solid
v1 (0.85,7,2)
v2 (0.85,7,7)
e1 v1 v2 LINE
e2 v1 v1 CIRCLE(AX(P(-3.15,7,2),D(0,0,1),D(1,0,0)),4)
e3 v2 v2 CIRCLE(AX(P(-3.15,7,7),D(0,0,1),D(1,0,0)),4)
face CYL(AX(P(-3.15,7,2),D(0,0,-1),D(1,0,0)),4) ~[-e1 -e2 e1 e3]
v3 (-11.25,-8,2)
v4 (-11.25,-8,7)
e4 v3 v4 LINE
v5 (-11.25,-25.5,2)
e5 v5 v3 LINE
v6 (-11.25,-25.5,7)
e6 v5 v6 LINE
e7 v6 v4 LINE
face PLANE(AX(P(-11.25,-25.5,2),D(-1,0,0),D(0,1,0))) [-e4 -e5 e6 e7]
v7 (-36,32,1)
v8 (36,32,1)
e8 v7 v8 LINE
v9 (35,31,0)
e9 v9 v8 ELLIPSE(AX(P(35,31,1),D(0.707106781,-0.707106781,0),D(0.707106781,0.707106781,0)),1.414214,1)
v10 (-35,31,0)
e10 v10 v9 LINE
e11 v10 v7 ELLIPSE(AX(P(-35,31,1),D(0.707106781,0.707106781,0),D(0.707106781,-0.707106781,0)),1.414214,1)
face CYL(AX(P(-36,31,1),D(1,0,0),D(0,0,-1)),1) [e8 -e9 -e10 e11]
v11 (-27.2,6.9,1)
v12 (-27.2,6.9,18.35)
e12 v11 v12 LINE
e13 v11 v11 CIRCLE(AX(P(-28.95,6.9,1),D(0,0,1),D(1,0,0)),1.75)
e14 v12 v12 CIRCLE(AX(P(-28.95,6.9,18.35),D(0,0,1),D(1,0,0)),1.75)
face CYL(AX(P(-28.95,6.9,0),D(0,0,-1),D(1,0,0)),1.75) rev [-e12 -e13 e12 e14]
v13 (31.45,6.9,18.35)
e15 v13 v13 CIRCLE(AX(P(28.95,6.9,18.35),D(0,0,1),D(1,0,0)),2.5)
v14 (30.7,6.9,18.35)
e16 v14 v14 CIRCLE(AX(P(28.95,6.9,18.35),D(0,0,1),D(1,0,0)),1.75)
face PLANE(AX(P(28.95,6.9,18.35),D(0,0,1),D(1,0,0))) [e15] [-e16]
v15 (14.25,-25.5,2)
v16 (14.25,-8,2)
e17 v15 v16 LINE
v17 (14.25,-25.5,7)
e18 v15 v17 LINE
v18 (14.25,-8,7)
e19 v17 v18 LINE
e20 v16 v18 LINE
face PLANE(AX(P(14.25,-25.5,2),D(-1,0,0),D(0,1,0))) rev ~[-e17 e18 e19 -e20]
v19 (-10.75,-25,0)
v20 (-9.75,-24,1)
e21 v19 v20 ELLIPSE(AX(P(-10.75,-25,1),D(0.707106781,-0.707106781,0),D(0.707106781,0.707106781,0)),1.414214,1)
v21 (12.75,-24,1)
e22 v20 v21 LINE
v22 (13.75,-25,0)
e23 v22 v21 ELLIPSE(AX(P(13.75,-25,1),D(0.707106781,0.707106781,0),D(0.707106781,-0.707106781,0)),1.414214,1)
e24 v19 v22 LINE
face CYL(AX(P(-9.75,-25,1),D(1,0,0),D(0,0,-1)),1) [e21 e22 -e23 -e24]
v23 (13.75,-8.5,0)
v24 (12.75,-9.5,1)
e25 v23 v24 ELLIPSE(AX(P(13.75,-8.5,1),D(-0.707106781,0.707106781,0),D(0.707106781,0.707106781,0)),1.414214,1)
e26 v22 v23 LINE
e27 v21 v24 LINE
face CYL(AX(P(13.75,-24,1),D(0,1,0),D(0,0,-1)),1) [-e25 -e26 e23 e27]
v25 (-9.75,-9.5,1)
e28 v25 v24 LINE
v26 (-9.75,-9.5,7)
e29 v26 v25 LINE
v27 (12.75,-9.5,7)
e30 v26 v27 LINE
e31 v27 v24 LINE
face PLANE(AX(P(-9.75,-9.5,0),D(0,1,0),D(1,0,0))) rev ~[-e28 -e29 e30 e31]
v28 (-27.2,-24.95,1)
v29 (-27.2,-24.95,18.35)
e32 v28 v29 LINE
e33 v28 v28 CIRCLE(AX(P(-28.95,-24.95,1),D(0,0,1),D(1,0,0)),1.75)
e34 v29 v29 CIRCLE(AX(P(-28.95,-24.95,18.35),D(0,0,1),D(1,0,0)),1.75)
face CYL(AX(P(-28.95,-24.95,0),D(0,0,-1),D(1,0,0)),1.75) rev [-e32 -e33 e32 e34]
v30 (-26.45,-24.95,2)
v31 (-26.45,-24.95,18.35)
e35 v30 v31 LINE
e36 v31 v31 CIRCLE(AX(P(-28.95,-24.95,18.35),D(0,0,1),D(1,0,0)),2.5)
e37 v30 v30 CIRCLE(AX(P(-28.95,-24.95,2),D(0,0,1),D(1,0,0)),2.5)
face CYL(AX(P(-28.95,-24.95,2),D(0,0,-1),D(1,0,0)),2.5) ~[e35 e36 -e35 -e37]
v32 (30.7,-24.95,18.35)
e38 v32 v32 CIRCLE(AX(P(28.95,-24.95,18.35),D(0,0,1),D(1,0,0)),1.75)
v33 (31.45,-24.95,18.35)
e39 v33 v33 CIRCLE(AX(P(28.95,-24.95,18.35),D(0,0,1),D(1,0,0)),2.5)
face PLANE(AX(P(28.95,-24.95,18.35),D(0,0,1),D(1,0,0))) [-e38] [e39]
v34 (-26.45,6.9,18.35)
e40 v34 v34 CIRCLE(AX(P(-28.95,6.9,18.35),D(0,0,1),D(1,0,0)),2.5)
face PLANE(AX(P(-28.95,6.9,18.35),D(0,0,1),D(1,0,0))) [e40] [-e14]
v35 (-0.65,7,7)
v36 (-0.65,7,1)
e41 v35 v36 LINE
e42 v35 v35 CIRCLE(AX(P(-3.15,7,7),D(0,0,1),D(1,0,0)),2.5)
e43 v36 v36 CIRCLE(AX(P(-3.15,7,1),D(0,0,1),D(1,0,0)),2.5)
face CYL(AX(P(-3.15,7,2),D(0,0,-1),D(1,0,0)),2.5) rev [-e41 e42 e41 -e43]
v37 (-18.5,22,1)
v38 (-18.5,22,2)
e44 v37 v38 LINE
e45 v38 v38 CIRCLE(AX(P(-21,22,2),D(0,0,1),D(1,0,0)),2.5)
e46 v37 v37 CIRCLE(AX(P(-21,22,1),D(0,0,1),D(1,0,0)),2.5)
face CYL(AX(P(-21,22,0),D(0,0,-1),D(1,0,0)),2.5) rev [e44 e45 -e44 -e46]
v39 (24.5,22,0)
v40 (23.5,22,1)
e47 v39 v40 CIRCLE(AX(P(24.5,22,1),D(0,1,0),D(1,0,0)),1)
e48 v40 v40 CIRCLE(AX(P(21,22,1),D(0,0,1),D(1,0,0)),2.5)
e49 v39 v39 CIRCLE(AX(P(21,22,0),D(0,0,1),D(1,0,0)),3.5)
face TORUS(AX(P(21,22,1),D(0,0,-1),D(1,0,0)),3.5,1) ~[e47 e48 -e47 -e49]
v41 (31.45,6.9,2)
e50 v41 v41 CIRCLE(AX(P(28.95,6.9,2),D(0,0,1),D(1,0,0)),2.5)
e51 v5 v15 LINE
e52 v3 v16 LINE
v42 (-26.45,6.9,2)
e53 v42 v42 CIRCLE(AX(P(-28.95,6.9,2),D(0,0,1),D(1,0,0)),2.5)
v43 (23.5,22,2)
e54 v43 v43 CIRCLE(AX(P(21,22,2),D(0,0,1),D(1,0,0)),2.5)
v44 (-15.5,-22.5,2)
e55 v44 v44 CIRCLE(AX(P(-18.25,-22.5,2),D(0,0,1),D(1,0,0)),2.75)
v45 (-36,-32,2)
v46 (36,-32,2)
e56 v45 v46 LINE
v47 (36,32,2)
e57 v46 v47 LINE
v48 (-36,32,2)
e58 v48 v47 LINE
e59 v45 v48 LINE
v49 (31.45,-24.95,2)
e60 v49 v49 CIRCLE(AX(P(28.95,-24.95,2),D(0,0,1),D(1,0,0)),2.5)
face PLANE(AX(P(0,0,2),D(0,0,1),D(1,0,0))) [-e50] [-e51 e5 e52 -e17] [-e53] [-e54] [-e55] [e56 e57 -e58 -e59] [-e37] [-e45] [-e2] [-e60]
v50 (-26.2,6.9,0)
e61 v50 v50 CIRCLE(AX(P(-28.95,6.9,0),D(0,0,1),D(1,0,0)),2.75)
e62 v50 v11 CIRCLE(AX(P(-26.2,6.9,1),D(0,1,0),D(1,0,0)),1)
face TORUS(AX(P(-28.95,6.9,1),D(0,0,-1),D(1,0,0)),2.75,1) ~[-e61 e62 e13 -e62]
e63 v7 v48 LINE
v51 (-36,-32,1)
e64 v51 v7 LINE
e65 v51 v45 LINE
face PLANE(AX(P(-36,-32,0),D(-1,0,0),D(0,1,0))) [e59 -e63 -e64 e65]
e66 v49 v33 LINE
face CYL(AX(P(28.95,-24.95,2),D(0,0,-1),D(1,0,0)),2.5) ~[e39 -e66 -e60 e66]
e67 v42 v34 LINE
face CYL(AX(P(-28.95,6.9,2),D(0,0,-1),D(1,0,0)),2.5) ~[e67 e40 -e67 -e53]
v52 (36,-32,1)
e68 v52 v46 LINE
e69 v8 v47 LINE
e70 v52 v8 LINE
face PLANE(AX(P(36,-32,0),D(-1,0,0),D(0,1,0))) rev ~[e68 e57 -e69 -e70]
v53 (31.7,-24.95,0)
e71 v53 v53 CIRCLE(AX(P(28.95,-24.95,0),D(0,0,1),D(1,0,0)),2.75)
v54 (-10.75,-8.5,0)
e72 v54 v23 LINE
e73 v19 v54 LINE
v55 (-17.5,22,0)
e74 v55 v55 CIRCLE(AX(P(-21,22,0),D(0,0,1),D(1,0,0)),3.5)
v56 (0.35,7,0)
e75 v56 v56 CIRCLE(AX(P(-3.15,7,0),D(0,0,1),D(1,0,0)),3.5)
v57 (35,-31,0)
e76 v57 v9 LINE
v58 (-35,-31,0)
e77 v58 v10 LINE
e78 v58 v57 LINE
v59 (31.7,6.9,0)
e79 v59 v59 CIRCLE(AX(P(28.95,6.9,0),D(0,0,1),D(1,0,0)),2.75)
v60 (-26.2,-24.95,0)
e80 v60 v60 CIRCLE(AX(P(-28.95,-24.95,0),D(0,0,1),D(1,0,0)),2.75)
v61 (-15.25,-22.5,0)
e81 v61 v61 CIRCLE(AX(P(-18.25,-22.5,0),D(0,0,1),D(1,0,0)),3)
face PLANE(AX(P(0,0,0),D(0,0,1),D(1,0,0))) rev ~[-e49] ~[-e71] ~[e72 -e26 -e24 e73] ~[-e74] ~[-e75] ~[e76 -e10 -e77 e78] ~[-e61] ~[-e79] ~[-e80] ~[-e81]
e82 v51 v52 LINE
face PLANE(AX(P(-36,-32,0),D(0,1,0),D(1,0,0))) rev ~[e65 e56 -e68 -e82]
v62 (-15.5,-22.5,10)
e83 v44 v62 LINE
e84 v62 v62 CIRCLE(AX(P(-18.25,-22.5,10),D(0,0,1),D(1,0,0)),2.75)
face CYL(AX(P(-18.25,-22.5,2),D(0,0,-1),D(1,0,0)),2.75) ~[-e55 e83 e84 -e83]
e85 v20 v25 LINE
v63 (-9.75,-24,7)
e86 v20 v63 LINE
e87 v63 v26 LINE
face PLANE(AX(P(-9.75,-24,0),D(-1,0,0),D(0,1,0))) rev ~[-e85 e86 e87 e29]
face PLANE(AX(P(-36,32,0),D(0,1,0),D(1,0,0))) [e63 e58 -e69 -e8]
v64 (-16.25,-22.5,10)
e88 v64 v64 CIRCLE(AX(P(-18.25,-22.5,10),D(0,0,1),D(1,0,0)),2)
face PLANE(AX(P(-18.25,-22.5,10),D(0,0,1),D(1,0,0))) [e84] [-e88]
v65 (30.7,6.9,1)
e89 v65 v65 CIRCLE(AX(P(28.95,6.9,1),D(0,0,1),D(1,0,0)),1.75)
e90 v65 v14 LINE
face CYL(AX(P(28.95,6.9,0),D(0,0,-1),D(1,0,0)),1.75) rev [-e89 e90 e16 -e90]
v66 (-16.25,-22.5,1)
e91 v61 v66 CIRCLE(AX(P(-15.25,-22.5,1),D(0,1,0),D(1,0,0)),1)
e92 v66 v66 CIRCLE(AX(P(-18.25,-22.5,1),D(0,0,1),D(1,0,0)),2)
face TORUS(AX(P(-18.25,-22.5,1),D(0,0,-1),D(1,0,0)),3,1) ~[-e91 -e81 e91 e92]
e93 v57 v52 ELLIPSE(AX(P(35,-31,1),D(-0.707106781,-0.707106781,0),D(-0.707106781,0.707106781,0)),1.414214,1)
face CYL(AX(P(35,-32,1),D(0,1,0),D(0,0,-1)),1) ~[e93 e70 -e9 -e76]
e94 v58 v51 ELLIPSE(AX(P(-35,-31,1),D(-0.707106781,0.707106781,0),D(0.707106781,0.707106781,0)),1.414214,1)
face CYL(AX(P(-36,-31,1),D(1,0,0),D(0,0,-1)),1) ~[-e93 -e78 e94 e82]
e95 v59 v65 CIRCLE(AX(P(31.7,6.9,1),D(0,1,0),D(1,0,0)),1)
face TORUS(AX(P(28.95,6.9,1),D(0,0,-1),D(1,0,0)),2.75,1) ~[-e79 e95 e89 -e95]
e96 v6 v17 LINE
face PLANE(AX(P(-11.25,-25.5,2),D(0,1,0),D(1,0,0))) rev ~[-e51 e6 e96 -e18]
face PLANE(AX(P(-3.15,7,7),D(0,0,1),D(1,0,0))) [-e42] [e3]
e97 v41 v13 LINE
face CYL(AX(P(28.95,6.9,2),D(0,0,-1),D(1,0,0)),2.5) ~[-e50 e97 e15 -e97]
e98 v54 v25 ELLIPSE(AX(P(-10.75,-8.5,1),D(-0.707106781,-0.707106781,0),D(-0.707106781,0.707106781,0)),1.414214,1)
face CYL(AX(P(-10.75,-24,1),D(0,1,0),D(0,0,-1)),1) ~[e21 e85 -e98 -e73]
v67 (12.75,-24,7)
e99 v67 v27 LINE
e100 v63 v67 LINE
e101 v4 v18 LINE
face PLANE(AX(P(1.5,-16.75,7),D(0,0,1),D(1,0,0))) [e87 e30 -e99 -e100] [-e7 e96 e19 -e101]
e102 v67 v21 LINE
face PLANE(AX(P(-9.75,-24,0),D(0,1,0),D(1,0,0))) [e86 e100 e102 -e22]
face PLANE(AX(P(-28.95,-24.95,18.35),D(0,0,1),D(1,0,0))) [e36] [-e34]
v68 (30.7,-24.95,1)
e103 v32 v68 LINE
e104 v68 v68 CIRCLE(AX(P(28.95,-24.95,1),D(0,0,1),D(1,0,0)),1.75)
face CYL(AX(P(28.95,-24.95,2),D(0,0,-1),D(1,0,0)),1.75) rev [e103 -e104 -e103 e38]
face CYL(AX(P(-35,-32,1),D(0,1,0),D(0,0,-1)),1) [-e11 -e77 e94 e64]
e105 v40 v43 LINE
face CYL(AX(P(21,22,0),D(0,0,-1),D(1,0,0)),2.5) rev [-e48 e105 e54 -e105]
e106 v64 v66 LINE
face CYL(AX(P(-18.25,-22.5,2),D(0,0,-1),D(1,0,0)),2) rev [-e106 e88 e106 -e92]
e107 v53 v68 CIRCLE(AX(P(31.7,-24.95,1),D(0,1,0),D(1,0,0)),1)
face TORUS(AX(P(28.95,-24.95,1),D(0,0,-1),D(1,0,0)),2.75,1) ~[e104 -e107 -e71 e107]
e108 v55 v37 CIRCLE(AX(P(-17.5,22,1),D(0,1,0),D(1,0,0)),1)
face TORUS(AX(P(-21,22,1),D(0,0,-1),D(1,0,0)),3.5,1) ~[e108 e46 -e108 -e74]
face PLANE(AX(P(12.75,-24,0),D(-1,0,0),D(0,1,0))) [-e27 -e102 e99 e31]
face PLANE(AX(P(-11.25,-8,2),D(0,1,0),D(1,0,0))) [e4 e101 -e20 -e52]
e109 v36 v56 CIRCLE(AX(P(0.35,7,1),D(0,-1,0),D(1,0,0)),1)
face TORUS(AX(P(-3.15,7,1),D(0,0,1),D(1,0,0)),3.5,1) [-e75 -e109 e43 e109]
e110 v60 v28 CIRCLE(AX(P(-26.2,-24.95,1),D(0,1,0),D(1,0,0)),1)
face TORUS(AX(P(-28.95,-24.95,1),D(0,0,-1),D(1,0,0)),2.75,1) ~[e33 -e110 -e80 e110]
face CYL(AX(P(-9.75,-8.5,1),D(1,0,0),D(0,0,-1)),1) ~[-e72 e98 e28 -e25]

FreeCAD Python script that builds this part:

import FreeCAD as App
import Part
import Sketcher


def edges_at(feature, points):
    """Names of the edges that pass closest to the given points."""
    edges = feature.Shape.Edges
    near = lambda p: min(range(len(edges)), key=lambda i: edges[i].distToShape(Part.Vertex(*p))[0])
    return sorted({f"Edge{near(p) + 1}" for p in points})


def add_polygon(sketch, points):
    """Adds a closed chain of lines whose ends are joined by coincident constraints."""
    first, n = sketch.GeometryCount, len(points)
    for a, b in zip(points, points[1:] + points[:1]):
        sketch.addGeometry(Part.LineSegment(App.Vector(*a, 0), App.Vector(*b, 0)), False)
    for i in range(n):
        sketch.addConstraint(Sketcher.Constraint("Coincident", first + i, 2, first + (i + 1) % n, 1))

doc = App.newDocument("Part")
body = doc.addObject("PartDesign::Body", "Body")

# Sketch on XY plane
sketch1 = body.newObject("Sketcher::SketchObject", "Sketch")
sketch1.AttachmentSupport = (doc.getObject("XY_Plane"), [""])
sketch1.MapMode = "FlatFace"
add_polygon(sketch1, [(-36, 32), (-36, -32), (36, -32), (36, 32)])  # lines 0-3
sketch1.addGeometry(Part.Circle(App.Vector(-28.95, -24.95, 0), App.Vector(0, 0, 1), 1.75), False)  # 4
sketch1.addGeometry(Part.Circle(App.Vector(-18.25, -22.5, 0), App.Vector(0, 0, 1), 2), False)  # 5
add_polygon(sketch1, [(12.75, -24), (-9.75, -24), (-9.75, -9.5), (12.75, -9.5)])  # lines 6-9
sketch1.addGeometry(Part.Circle(App.Vector(28.95, -24.95, 0), App.Vector(0, 0, 1), 1.75), False)  # 10
sketch1.addGeometry(Part.Circle(App.Vector(-28.95, 6.9, 0), App.Vector(0, 0, 1), 1.75), False)  # 11
sketch1.addGeometry(Part.Circle(App.Vector(-3.15, 7, 0), App.Vector(0, 0, 1), 2.5), False)  # 12
sketch1.addGeometry(Part.Circle(App.Vector(-21, 22, 0), App.Vector(0, 0, 1), 2.5), False)  # 13
sketch1.addGeometry(Part.Circle(App.Vector(28.95, 6.9, 0), App.Vector(0, 0, 1), 1.75), False)  # 14
sketch1.addGeometry(Part.Circle(App.Vector(21, 22, 0), App.Vector(0, 0, 1), 2.5), False)  # 15
sketch1.addConstraint([
    Sketcher.Constraint("Vertical", 0),
    Sketcher.Constraint("Horizontal", 1),
    Sketcher.Constraint("Vertical", 2),
    Sketcher.Constraint("Horizontal", 3),
    Sketcher.Constraint("Horizontal", 6),
    Sketcher.Constraint("Vertical", 7),
    Sketcher.Constraint("Horizontal", 8),
    Sketcher.Constraint("Vertical", 9),
    Sketcher.Constraint("Equal", 4, 10),
    Sketcher.Constraint("Equal", 10, 11),
    Sketcher.Constraint("Equal", 12, 13),
    Sketcher.Constraint("Equal", 11, 14),
    Sketcher.Constraint("Equal", 13, 15),
    Sketcher.Constraint("Symmetric", 0, 2, 2, 2, -1, 1),
    Sketcher.Constraint("Symmetric", 4, 3, 10, 3, -2),
    Sketcher.Constraint("Symmetric", 11, 3, 14, 3, -2),
    Sketcher.Constraint("Symmetric", 13, 3, 15, 3, -2),
    Sketcher.Constraint("Vertical", 4, 3, 11, 3),
    Sketcher.Constraint("Diameter", 5, 4.0),
    Sketcher.Constraint("Diameter", 12, 5.0),
    Sketcher.Constraint("Diameter", 4, 3.5),
    Sketcher.Constraint("DistanceX", 1, 1, 1, 2, 72.0),
    Sketcher.Constraint("DistanceY", 0, 2, 0, 1, 64.0),
    Sketcher.Constraint("DistanceX", 6, 2, 6, 1, 22.5),
    Sketcher.Constraint("DistanceY", 7, 1, 7, 2, 14.5),
    Sketcher.Constraint("DistanceY", -1, 1, 12, 3, 7.0),
    Sketcher.Constraint("DistanceX", 13, 3, -1, 1, 21.0),
    Sketcher.Constraint("DistanceY", -1, 1, 13, 3, 22.0),
    Sketcher.Constraint("DistanceY", 6, 2, -1, 1, 24.0),
    Sketcher.Constraint("DistanceY", 5, 3, 7, 2, 13.0),
    Sketcher.Constraint("DistanceY", -1, 1, 11, 3, 6.9),
    Sketcher.Constraint("DistanceX", 4, 3, 5, 3, 10.7),
    Sketcher.Constraint("DistanceX", 5, 3, 10, 3, 47.2),
    Sketcher.Constraint("DistanceX", 11, 3, 12, 3, 25.8),
    Sketcher.Constraint("DistanceX", 5, 3, 6, 2, 8.5),
    Sketcher.Constraint("DistanceY", 4, 3, -1, 1, 24.95),
])
pad1 = body.newObject("PartDesign::Pad", "Pad")
pad1.Profile = sketch1
pad1.Length = 2

# Sketch on XY plane
sketch2 = body.newObject("Sketcher::SketchObject", "Sketch001")
sketch2.AttachmentSupport = (doc.getObject("XY_Plane"), [""])
sketch2.MapMode = "FlatFace"
sketch2.AttachmentOffset = App.Placement(App.Vector(0, 0, 2), App.Rotation())
sketch2.addGeometry([
    Part.Circle(App.Vector(28.95, -24.95, 0), App.Vector(0, 0, 1), 2.5),  # 0
    Part.Circle(App.Vector(28.95, -24.95, 0), App.Vector(0, 0, 1), 1.75),  # 1
    Part.Circle(App.Vector(28.95, 6.9, 0), App.Vector(0, 0, 1), 2.5),  # 2
    Part.Circle(App.Vector(28.95, 6.9, 0), App.Vector(0, 0, 1), 1.75),  # 3
    Part.Circle(App.Vector(-28.95, -24.95, 0), App.Vector(0, 0, 1), 2.5),  # 4
    Part.Circle(App.Vector(-28.95, -24.95, 0), App.Vector(0, 0, 1), 1.75),  # 5
    Part.Circle(App.Vector(-28.95, 6.9, 0), App.Vector(0, 0, 1), 2.5),  # 6
    Part.Circle(App.Vector(-28.95, 6.9, 0), App.Vector(0, 0, 1), 1.75),  # 7
], False)
sketch2.addConstraint([
    Sketcher.Constraint("Coincident", 1, 3, 0, 3),
    Sketcher.Constraint("Coincident", 3, 3, 2, 3),
    Sketcher.Constraint("Coincident", 5, 3, 4, 3),
    Sketcher.Constraint("Coincident", 7, 3, 6, 3),
    Sketcher.Constraint("Equal", 0, 2),
    Sketcher.Constraint("Equal", 1, 3),
    Sketcher.Constraint("Equal", 2, 4),
    Sketcher.Constraint("Equal", 3, 5),
    Sketcher.Constraint("Equal", 4, 6),
    Sketcher.Constraint("Equal", 5, 7),
    Sketcher.Constraint("Symmetric", 0, 3, 4, 3, -2),
    Sketcher.Constraint("Symmetric", 2, 3, 6, 3, -2),
    Sketcher.Constraint("Vertical", 1, 3, 2, 3),
    Sketcher.Constraint("Diameter", 0, 5.0),
    Sketcher.Constraint("Diameter", 1, 3.5),
    Sketcher.Constraint("DistanceY", -1, 1, 2, 3, 6.9),
    Sketcher.Constraint("DistanceX", 4, 3, 0, 3, 57.9),
    Sketcher.Constraint("DistanceY", 0, 3, -1, 1, 24.95),
])
pad2 = body.newObject("PartDesign::Pad", "Pad001")
pad2.Profile = sketch2
pad2.Length = 16.35

# Sketch on XY plane
sketch3 = body.newObject("Sketcher::SketchObject", "Sketch002")
sketch3.AttachmentSupport = (doc.getObject("XY_Plane"), [""])
sketch3.MapMode = "FlatFace"
sketch3.AttachmentOffset = App.Placement(App.Vector(0, 0, 2), App.Rotation())
sketch3.addGeometry([
    Part.Circle(App.Vector(-18.25, -22.5, 0), App.Vector(0, 0, 1), 2.75),
    Part.Circle(App.Vector(-18.25, -22.5, 0), App.Vector(0, 0, 1), 2),
], False)
sketch3.addConstraint([
    Sketcher.Constraint("Coincident", 1, 3, 0, 3),
    Sketcher.Constraint("Diameter", 1, 4.0),
    Sketcher.Constraint("Diameter", 0, 5.5),
    Sketcher.Constraint("DistanceY", 0, 3, -1, 1, 22.5),
    Sketcher.Constraint("DistanceX", 0, 3, -1, 1, 18.25),
])
pad3 = body.newObject("PartDesign::Pad", "Pad002")
pad3.Profile = sketch3
pad3.Length = 8

# Sketch on XY plane
sketch4 = body.newObject("Sketcher::SketchObject", "Sketch003")
sketch4.AttachmentSupport = (doc.getObject("XY_Plane"), [""])
sketch4.MapMode = "FlatFace"
sketch4.AttachmentOffset = App.Placement(App.Vector(0, 0, 2), App.Rotation())
sketch4.addGeometry(Part.Circle(App.Vector(-3.15, 7, 0), App.Vector(0, 0, 1), 4), False)  # 0
sketch4.addGeometry(Part.Circle(App.Vector(-3.15, 7, 0), App.Vector(0, 0, 1), 2.5), False)  # 1
add_polygon(sketch4, [(-11.25, -8), (-11.25, -25.5), (14.25, -25.5), (14.25, -8)])  # lines 2-5
add_polygon(sketch4, [(12.75, -24), (-9.75, -24), (-9.75, -9.5), (12.75, -9.5)])  # lines 6-9
sketch4.addConstraint([
    Sketcher.Constraint("Vertical", 2),
    Sketcher.Constraint("Horizontal", 3),
    Sketcher.Constraint("Vertical", 4),
    Sketcher.Constraint("Horizontal", 5),
    Sketcher.Constraint("Horizontal", 6),
    Sketcher.Constraint("Vertical", 7),
    Sketcher.Constraint("Horizontal", 8),
    Sketcher.Constraint("Vertical", 9),
    Sketcher.Constraint("Coincident", 1, 3, 0, 3),
    Sketcher.Constraint("Diameter", 0, 8.0),
    Sketcher.Constraint("Diameter", 1, 5.0),
    Sketcher.Constraint("DistanceX", 3, 1, 3, 2, 25.5),
    Sketcher.Constraint("DistanceX", 6, 2, 6, 1, 22.5),
    Sketcher.Constraint("DistanceY", 2, 2, 2, 1, 17.5),
    Sketcher.Constraint("DistanceY", 7, 1, 7, 2, 14.5),
    Sketcher.Constraint("DistanceY", -1, 1, 0, 3, 7.0),
    Sketcher.Constraint("DistanceY", 4, 2, -1, 1, 8.0),
    Sketcher.Constraint("DistanceY", 6, 2, -1, 1, 24.0),
    Sketcher.Constraint("DistanceX", 6, 2, 3, 2, 24.0),
    Sketcher.Constraint("DistanceX", 2, 2, 0, 3, 8.1),
    Sketcher.Constraint("DistanceX", 0, 3, -1, 1, 3.15),
])
pad4 = body.newObject("PartDesign::Pad", "Pad003")
pad4.Profile = sketch4
pad4.Length = 5
doc.recompute()

fillet = body.newObject("PartDesign::Fillet", "Fillet")
fillet.Base = (pad4, edges_at(pad4, [
    (0, 32, 0),
    (36, 0, 0),
    (0, -32, 0),
    (-36, 0, 0),
    (-9.75, -16.75, 0),
    (1.5, -24, 0),
    (12.75, -16.75, 0),
    (1.5, -9.5, 0),
    (-5.65, 7, 0),
    (18.5, 22, 0),
    (-23.5, 22, 0),
    (-20.25, -22.5, 0),
    (-30.7, 6.9, 0),
    (27.2, 6.9, 0),
    (27.2, -24.95, 0),
    (-30.7, -24.95, 0),
]))
fillet.Radius = 1

doc.recompute()
